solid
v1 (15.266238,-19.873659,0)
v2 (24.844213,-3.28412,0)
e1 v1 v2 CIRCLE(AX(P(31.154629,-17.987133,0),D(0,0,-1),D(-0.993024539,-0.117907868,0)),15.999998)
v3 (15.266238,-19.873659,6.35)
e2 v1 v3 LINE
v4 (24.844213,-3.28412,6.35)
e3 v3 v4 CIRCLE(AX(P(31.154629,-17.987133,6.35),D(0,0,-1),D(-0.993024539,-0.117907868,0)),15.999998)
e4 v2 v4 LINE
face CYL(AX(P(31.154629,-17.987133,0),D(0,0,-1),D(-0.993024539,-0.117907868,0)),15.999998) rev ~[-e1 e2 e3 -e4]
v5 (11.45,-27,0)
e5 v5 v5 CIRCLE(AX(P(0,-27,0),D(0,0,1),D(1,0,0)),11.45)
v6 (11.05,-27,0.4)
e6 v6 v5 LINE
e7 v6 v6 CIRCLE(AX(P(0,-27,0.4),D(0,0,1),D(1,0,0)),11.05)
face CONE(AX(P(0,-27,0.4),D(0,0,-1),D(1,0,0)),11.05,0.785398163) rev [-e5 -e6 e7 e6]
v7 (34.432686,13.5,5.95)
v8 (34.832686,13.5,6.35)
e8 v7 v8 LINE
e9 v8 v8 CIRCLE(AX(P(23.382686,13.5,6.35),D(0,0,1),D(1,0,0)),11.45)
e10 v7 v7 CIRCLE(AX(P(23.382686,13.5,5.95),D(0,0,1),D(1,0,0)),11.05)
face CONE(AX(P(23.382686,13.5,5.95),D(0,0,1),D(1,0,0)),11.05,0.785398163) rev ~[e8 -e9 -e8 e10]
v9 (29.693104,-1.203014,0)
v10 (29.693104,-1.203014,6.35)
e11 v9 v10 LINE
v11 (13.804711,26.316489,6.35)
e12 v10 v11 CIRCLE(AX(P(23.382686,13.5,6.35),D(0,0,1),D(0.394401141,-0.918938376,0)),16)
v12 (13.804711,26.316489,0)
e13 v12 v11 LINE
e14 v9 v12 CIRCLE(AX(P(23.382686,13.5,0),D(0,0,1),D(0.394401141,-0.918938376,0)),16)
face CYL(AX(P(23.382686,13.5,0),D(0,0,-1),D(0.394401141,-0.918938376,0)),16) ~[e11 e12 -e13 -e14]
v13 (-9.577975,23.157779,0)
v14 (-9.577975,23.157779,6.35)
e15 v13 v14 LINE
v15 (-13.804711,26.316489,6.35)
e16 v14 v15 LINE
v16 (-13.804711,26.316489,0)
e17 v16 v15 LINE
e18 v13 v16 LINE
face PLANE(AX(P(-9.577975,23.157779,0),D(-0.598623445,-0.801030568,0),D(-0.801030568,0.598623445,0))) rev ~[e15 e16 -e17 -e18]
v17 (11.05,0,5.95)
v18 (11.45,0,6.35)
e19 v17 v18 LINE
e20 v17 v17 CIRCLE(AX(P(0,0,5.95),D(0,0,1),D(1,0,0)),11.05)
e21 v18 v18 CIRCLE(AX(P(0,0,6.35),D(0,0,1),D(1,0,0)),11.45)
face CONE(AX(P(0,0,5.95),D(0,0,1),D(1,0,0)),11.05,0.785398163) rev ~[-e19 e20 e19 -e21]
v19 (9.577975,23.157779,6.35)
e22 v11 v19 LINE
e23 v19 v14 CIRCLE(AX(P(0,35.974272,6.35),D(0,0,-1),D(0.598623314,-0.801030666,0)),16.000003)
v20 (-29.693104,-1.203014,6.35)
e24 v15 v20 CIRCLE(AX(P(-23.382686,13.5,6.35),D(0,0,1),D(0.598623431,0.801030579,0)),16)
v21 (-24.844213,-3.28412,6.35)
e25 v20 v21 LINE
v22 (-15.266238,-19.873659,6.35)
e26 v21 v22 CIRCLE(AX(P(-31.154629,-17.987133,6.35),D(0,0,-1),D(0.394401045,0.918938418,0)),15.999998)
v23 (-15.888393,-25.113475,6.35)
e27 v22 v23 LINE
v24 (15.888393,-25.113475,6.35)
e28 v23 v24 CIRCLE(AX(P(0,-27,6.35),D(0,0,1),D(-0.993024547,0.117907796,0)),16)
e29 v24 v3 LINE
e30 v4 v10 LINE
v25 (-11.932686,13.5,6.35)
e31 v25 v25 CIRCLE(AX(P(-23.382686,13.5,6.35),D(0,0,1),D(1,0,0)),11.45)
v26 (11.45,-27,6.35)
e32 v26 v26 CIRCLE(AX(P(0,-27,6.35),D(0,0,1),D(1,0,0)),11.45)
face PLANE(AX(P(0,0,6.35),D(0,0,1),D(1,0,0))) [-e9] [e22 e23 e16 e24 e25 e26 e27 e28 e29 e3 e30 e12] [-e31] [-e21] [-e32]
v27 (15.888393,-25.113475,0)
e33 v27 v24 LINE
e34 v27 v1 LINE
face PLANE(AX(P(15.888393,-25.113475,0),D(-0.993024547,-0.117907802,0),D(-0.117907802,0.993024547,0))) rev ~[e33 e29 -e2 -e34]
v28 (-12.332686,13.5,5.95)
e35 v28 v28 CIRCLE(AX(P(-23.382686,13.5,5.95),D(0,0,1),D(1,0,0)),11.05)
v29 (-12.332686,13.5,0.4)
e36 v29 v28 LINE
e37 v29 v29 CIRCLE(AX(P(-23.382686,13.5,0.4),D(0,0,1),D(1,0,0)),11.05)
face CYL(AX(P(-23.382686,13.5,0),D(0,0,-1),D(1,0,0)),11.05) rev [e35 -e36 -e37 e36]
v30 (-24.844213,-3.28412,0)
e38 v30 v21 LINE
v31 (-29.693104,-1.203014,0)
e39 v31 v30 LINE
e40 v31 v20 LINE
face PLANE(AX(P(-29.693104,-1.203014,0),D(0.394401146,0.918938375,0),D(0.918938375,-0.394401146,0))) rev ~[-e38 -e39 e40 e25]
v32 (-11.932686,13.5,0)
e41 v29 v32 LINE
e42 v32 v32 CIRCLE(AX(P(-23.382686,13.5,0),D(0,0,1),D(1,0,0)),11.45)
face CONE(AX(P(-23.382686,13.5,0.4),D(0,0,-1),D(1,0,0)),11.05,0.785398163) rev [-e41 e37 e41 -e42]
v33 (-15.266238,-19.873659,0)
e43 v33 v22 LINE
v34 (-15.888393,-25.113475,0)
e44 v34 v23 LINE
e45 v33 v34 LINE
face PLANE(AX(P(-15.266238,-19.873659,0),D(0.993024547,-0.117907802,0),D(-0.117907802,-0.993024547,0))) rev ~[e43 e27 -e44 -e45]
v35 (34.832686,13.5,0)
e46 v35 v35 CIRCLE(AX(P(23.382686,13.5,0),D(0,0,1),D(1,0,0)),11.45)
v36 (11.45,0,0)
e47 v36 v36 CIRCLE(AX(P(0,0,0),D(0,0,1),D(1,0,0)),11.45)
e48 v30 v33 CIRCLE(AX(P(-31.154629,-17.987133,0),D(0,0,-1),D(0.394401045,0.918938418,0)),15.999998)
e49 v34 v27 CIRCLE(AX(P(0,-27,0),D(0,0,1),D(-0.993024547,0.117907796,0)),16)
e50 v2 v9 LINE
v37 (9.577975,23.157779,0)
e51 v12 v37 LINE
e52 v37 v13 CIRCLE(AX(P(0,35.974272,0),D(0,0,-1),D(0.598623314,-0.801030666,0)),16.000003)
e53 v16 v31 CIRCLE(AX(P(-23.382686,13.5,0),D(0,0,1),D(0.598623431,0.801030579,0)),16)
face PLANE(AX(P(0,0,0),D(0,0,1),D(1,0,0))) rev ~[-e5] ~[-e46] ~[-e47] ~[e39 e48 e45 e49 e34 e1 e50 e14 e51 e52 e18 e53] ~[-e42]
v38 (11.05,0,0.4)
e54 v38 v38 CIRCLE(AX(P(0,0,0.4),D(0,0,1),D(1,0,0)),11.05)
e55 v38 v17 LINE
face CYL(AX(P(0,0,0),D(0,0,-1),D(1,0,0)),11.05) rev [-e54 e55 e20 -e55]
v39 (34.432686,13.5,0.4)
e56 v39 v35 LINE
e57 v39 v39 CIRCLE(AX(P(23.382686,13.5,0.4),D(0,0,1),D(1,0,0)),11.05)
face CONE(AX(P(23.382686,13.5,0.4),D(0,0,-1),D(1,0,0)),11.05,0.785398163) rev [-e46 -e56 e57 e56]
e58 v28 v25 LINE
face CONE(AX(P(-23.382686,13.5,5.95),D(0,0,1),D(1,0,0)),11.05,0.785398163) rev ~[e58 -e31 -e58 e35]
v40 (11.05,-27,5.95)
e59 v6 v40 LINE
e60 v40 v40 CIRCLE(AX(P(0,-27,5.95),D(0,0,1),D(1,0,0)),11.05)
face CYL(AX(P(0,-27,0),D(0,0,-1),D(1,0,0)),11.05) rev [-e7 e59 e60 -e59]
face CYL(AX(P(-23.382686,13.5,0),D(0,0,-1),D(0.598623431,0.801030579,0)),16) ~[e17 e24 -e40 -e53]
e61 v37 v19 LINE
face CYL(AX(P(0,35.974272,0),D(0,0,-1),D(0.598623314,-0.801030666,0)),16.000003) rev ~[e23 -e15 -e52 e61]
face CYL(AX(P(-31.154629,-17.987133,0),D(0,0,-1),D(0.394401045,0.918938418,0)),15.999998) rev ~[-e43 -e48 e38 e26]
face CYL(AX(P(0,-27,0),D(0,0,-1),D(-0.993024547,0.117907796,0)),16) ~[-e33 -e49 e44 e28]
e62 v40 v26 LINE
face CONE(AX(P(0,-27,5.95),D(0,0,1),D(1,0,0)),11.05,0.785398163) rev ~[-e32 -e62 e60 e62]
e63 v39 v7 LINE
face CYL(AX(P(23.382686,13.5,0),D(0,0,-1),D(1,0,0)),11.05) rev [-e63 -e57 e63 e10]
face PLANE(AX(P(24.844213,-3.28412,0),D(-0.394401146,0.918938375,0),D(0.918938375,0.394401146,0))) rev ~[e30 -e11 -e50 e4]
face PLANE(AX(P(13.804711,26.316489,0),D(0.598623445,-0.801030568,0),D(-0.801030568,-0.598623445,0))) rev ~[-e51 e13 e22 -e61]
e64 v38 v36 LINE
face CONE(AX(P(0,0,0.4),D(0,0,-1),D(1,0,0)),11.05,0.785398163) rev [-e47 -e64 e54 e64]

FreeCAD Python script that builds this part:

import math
import FreeCAD as App
import Part
import Sketcher


def edges_at(feature, points):
    """Names of the edges that pass closest to the given points."""
    edges = feature.Shape.Edges
    near = lambda p: min(range(len(edges)), key=lambda i: edges[i].distToShape(Part.Vertex(*p))[0])
    return sorted({f"Edge{near(p) + 1}" for p in points})

doc = App.newDocument("Part")
params = doc.addObject("Spreadsheet::Sheet", "Params")
for row, (alias, value) in enumerate([
    ("sketch1_radius", "16 mm"),
    ("sketch1_diameter", "22.1 mm"),
    ("pad1_length", "6.35 mm"),
    ("chamfer_size", "0.4 mm"),
], start=1):
    params.set(f"A{row}", alias)
    params.set(f"B{row}", "=" + value)
    params.setAlias(f"B{row}", alias)

body = doc.addObject("PartDesign::Body", "Body")

sketch1 = body.newObject("Sketcher::SketchObject", "Sketch")
sketch1.AttachmentSupport = (doc.getObject("XY_Plane"), [""])
sketch1.MapMode = "FlatFace"
sketch1.addGeometry([
    Part.LineSegment(App.Vector(-10, 23, 0), App.Vector(-14, 26, 0)),
    Part.ArcOfCircle(Part.Circle(App.Vector(-23, 13, 0), App.Vector(0, 0, 1), 16), math.radians(53), math.radians(247)),
    Part.LineSegment(App.Vector(-30, -1, 0), App.Vector(-25, -3, 0)),
    Part.ArcOfCircle(Part.Circle(App.Vector(-31, -18, 0), App.Vector(0, 0, 1), 16), math.radians(-7), math.radians(67)),
    Part.LineSegment(App.Vector(-15, -20, 0), App.Vector(-16, -25, 0)),
    Part.ArcOfCircle(Part.Circle(App.Vector(0, -27, 0), App.Vector(0, 0, 1), 16), math.radians(173), math.radians(367)),
    Part.LineSegment(App.Vector(16, -25, 0), App.Vector(15, -20, 0)),
    Part.ArcOfCircle(Part.Circle(App.Vector(31, -18, 0), App.Vector(0, 0, 1), 16), math.radians(113), math.radians(187)),
    Part.LineSegment(App.Vector(25, -3, 0), App.Vector(30, -1, 0)),
    Part.ArcOfCircle(Part.Circle(App.Vector(23, 13, 0), App.Vector(0, 0, 1), 16), math.radians(-67), math.radians(127)),
    Part.LineSegment(App.Vector(14, 26, 0), App.Vector(10, 23, 0)),
    Part.ArcOfCircle(Part.Circle(App.Vector(0, 36, 0), App.Vector(0, 0, 1), 16), math.radians(-127), math.radians(-53)),
    Part.Circle(App.Vector(0, -27, 0), App.Vector(0, 0, 1), 11),
    Part.Circle(App.Vector(-23, 14, 0), App.Vector(0, 0, 1), 11),
    Part.Circle(App.Vector(0, 0, 0), App.Vector(0, 0, 1), 11),
    Part.Circle(App.Vector(23, 14, 0), App.Vector(0, 0, 1), 11),
], False)
sketch1.addConstraint([
    Sketcher.Constraint("Tangent", 0, 2, 1, 1),
    Sketcher.Constraint("Tangent", 1, 2, 2, 1),
    Sketcher.Constraint("Tangent", 2, 2, 3, 2),
    Sketcher.Constraint("Tangent", 3, 1, 4, 1),
    Sketcher.Constraint("Tangent", 4, 2, 5, 1),
    Sketcher.Constraint("Tangent", 5, 2, 6, 1),
    Sketcher.Constraint("Tangent", 6, 2, 7, 2),
    Sketcher.Constraint("Tangent", 7, 1, 8, 1),
    Sketcher.Constraint("Tangent", 8, 2, 9, 1),
    Sketcher.Constraint("Tangent", 9, 2, 10, 1),
    Sketcher.Constraint("Tangent", 10, 2, 11, 2),
    Sketcher.Constraint("Tangent", 11, 1, 0, 1),
    Sketcher.Constraint("Coincident", 14, 3, -1, 1),
    Sketcher.Constraint("Coincident", 12, 3, 5, 3),
    Sketcher.Constraint("Coincident", 13, 3, 1, 3),
    Sketcher.Constraint("Coincident", 15, 3, 9, 3),
    Sketcher.Constraint("Equal", 1, 3),
    Sketcher.Constraint("Equal", 3, 5),
    Sketcher.Constraint("Equal", 5, 7),
    Sketcher.Constraint("Equal", 7, 9),
    Sketcher.Constraint("Equal", 12, 13),
    Sketcher.Constraint("Equal", 13, 14),
    Sketcher.Constraint("Equal", 14, 15),
    Sketcher.Constraint("Symmetric", 3, 3, 7, 3, -2),
    Sketcher.Constraint("Symmetric", 1, 3, 9, 3, -2),
    Sketcher.Constraint("PointOnObject", 5, 3, -2),
    Sketcher.Constraint("PointOnObject", 11, 3, -2),
    Sketcher.Constraint("Equal", 0, 2),
    Sketcher.Constraint("Equal", 2, 4),
    Sketcher.Constraint("Radius", 1, 16.0),
    Sketcher.Constraint("Diameter", 12, 22.1),
    Sketcher.Constraint("DistanceY", 5, 3, -1, 1, 27.0),
    Sketcher.Constraint("DistanceY", -1, 1, 1, 3, 13.5),
    Sketcher.Constraint("Radius", 11, 16.000003),
    Sketcher.Constraint("DistanceX", 3, 3, -1, 1, 31.154629),
    Sketcher.Constraint("DistanceX", 0, 2, -1, 1, 13.804711),
])
sketch1.setExpression("Constraints[29]", "Params.sketch1_radius")
sketch1.setExpression("Constraints[30]", "Params.sketch1_diameter")
pad1 = body.newObject("PartDesign::Pad", "Pad")
pad1.Profile = sketch1
pad1.setExpression("Length", "Params.pad1_length")
doc.recompute()

chamfer = body.newObject("PartDesign::Chamfer", "Chamfer")
chamfer.Base = (pad1, edges_at(pad1, [
    (-11.05, 0, 6.35),
    (-11.05, 0, 0),
    (-11.05, -27, 6.35),
    (-11.05, -27, 0),
    (-34.433, 13.5, 6.35),
    (-34.433, 13.5, 0),
    (12.333, 13.5, 6.35),
    (12.333, 13.5, 0),
]))
chamfer.setExpression("Size", "Params.chamfer_size")

doc.recompute()
